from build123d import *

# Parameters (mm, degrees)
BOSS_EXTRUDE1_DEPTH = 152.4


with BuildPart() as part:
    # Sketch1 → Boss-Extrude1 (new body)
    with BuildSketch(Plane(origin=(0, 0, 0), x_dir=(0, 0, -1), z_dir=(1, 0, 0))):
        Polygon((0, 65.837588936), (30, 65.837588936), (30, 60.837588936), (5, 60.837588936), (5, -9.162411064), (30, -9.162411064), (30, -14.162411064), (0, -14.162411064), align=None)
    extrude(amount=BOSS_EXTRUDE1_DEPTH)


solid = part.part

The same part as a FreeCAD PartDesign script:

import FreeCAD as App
import Part
import Sketcher
Q = App.Units.Quantity


def add_polygon(sketch, points):
    """Adds a closed chain of lines whose ends are joined by coincident constraints."""
    first, n = sketch.GeometryCount, len(points)
    for a, b in zip(points, points[1:] + points[:1]):
        sketch.addGeometry(Part.LineSegment(App.Vector(*a, 0), App.Vector(*b, 0)), False)
    for i in range(n):
        sketch.addConstraint(Sketcher.Constraint("Coincident", first + i, 2, first + (i + 1) % n, 1))

doc = App.newDocument("Part")
body = doc.addObject("PartDesign::Body", "Body")

# Sketch on YZ plane
sketch1 = body.newObject("Sketcher::SketchObject", "Sketch")
sketch1.AttachmentSupport = (doc.getObject("YZ_Plane"), [""])
sketch1.MapMode = "FlatFace"
add_polygon(sketch1, [(65.837589, -30), (65.837589, 0), (-14.162411, 0), (-14.162411, -30), (-9.162411, -30), (-9.162411, -5), (60.837589, -5), (60.837589, -30)])  # lines 0-7
sketch1.addConstraint([
    Sketcher.Constraint("Vertical", 0),
    Sketcher.Constraint("Horizontal", 1),
    Sketcher.Constraint("Vertical", 2),
    Sketcher.Constraint("Horizontal", 3),
    Sketcher.Constraint("Vertical", 4),
    Sketcher.Constraint("Horizontal", 5),
    Sketcher.Constraint("Vertical", 6),
    Sketcher.Constraint("Horizontal", 7),
    Sketcher.Constraint("PointOnObject", 0, 2, -1),
    Sketcher.Constraint("Horizontal", 3, 2, 6, 2),
    Sketcher.Constraint("Equal", 3, 7),
    Sketcher.Constraint("DistanceX", 1, 2, 1, 1, Q("80 mm")),
    Sketcher.Constraint("DistanceX", 3, 1, 3, 2, Q("5 mm")),
    Sketcher.Constraint("DistanceY", 0, 1, 0, 2, Q("30 mm")),
    Sketcher.Constraint("DistanceY", 4, 1, 4, 2, Q("25 mm")),
    Sketcher.Constraint("DistanceX", -1, 1, 0, 2, Q("65.837589 mm")),
])
pad1 = body.newObject("PartDesign::Pad", "Pad")
pad1.Profile = sketch1
pad1.Length = 152.4

doc.recompute()
